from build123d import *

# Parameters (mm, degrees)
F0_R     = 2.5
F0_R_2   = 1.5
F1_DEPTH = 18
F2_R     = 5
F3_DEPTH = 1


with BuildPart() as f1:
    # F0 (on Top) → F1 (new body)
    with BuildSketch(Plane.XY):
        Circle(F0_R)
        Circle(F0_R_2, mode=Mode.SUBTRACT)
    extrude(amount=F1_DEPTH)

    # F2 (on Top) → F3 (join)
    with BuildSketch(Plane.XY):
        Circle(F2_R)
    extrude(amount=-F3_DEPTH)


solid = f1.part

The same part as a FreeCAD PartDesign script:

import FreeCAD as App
import Part
import Sketcher

V = App.Vector
Q = App.Units.Quantity

doc = App.newDocument("Part")
body = doc.addObject("PartDesign::Body", "Body")

sketch1 = body.newObject("Sketcher::SketchObject", "Sketch")
sketch1.AttachmentSupport = (doc.getObject("XY_Plane"), [""])
sketch1.MapMode = "FlatFace"
sketch1.addGeometry([
    Part.Circle(V(0, 0, 0), V(0, 0, 1), 2.5),
    Part.Circle(V(0, 0, 0), V(0, 0, 1), 1.5),
], False)
sketch1.addConstraint([
    Sketcher.Constraint("Coincident", 0, 3, -1, 1),
    Sketcher.Constraint("Coincident", 1, 3, -1, 1),
    Sketcher.Constraint("Diameter", 0, Q("5 mm")),
    Sketcher.Constraint("Diameter", 1, Q("3 mm")),
])
pad1 = body.newObject("PartDesign::Pad", "Pad")
pad1.Profile = sketch1
pad1.Length = 18

sketch2 = body.newObject("Sketcher::SketchObject", "Sketch001")
sketch2.AttachmentSupport = (doc.getObject("XY_Plane"), [""])
sketch2.MapMode = "FlatFace"
sketch2.addGeometry(Part.Circle(V(0, 0, 0), V(0, 0, 1), 5), False)
sketch2.addConstraint([
    Sketcher.Constraint("Coincident", 0, 3, -1, 1),
    Sketcher.Constraint("Diameter", 0, Q("10 mm")),
])
pad2 = body.newObject("PartDesign::Pad", "Pad001")
pad2.Profile = sketch2
pad2.Length = 1
pad2.Reversed = True

doc.recompute()
